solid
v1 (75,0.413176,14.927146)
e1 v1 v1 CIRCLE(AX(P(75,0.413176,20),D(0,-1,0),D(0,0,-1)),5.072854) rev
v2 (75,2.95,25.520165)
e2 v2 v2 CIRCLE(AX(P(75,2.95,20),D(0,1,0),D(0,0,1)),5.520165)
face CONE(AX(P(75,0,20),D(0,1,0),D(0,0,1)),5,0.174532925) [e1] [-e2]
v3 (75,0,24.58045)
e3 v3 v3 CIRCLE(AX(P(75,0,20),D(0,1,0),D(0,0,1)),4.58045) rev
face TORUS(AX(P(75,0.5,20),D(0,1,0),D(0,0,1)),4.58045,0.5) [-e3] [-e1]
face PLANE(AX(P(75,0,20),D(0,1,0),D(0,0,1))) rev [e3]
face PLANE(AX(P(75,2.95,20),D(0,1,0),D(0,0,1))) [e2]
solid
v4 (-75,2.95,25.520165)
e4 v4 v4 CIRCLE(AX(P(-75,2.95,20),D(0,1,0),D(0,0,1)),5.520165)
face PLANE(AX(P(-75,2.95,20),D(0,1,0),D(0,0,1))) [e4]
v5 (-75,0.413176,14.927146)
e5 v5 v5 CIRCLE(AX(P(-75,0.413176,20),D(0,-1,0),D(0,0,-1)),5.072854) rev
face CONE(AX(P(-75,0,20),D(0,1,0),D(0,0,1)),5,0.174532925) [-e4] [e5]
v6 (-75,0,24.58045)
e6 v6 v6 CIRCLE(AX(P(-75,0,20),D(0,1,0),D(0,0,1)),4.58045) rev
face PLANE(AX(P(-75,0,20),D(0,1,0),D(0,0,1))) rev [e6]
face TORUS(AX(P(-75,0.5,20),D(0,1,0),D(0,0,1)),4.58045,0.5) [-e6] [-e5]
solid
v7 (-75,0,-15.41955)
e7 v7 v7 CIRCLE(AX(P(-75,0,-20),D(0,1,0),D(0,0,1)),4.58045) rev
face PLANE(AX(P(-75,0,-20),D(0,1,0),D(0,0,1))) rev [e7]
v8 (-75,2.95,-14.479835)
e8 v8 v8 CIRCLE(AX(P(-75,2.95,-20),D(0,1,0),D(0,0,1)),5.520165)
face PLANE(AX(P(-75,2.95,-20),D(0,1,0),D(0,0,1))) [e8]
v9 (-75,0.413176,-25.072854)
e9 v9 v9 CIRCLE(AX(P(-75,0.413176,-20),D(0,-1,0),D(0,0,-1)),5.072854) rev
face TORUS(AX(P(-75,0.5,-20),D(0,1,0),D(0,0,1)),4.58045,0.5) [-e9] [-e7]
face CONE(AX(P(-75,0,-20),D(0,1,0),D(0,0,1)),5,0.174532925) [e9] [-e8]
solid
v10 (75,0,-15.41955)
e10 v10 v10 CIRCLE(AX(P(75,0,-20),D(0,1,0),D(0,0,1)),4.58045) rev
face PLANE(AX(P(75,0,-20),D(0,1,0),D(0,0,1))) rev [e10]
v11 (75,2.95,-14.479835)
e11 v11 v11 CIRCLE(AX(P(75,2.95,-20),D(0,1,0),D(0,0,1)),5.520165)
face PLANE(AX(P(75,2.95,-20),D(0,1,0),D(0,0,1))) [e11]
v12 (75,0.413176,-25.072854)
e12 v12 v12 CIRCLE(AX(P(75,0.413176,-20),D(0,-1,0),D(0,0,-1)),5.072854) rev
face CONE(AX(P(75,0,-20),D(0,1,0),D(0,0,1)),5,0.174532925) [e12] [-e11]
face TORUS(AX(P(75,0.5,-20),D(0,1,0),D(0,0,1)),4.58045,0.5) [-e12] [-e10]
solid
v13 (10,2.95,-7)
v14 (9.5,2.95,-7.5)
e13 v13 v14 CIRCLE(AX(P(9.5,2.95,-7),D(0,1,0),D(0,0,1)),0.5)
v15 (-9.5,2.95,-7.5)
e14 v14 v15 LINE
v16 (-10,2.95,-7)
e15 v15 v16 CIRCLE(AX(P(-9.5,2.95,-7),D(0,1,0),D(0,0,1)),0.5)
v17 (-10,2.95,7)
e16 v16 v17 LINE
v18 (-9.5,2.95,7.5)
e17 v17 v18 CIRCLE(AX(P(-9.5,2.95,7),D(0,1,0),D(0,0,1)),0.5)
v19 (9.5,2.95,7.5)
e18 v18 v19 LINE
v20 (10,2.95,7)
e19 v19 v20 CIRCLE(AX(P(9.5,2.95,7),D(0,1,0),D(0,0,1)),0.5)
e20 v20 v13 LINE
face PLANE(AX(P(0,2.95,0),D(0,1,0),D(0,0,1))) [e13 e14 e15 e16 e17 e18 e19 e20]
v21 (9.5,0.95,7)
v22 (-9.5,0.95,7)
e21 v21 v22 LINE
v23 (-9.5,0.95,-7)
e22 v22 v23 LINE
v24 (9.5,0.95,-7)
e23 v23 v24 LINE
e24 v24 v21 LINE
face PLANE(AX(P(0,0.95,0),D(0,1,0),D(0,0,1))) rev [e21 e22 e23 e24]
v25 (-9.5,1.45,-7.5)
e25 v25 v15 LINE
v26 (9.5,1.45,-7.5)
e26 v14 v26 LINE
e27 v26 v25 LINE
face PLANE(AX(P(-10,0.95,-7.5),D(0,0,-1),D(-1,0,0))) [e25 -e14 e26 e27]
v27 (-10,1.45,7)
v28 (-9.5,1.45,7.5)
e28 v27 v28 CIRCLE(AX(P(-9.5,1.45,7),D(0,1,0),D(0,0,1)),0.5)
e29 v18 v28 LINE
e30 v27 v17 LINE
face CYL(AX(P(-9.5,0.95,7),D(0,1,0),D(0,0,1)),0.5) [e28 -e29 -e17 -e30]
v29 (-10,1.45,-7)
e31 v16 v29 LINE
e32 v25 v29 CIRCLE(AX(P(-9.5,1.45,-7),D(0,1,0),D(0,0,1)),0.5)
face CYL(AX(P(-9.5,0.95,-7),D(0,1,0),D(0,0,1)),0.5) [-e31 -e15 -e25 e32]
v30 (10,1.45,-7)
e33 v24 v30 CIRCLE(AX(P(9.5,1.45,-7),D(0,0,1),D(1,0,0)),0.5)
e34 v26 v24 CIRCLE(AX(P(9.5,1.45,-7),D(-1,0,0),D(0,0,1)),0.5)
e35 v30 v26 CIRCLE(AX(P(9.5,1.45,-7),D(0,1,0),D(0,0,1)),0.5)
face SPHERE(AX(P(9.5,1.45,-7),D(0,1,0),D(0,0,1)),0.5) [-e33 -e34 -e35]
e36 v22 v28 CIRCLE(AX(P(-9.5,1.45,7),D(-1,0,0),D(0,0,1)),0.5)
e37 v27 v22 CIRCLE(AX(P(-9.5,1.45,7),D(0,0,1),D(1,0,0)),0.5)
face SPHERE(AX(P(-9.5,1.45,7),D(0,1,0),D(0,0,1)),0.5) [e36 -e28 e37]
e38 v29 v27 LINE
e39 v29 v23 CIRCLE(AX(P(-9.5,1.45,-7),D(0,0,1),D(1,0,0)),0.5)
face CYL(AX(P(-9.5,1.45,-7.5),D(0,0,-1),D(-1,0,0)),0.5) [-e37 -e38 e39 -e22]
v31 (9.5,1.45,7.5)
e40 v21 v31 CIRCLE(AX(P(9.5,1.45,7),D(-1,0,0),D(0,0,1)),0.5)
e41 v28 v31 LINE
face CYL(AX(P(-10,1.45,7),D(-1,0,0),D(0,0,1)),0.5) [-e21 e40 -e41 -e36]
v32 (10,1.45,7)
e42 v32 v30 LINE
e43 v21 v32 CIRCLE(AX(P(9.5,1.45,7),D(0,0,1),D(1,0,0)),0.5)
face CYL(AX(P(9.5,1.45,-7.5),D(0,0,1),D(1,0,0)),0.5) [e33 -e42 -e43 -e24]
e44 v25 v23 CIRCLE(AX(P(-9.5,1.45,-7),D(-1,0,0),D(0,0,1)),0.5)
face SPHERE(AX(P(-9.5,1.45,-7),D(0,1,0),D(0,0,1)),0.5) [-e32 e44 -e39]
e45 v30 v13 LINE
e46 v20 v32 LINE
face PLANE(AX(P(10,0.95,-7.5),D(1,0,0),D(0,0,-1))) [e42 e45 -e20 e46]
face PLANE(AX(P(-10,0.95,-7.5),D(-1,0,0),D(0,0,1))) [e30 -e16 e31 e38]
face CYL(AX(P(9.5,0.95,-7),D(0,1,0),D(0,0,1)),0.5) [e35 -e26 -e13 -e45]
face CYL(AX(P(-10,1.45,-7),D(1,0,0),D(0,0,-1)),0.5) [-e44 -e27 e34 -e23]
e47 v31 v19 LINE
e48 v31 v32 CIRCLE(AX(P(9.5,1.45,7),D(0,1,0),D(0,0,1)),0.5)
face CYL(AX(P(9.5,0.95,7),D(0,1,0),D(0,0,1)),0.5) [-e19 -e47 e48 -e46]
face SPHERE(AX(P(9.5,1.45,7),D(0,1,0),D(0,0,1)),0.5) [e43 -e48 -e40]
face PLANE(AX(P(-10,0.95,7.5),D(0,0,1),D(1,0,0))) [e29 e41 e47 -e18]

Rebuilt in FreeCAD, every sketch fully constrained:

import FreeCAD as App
import Part
import Sketcher
from FreeCAD import Vector
Q = App.Units.Quantity


def edges_at(feature, points):
    """Names of the edges that pass closest to the given points."""
    edges = feature.Shape.Edges
    near = lambda p: min(range(len(edges)), key=lambda i: edges[i].distToShape(Part.Vertex(*p))[0])
    return sorted({f"Edge{near(p) + 1}" for p in points})

doc = App.newDocument("Part")
body = doc.addObject("PartDesign::Body", "Body")

# Sketch on XZ plane
sketch1 = body.newObject("Sketcher::SketchObject", "Sketch")
sketch1.AttachmentSupport = (doc.getObject("XZ_Plane"), [""])
sketch1.MapMode = "FlatFace"
sketch1.addGeometry(Part.Circle(Vector(-75, -20, 0), Vector(0, 0, 1), 5), False)
sketch1.addConstraint(Sketcher.Constraint("Diameter", 0, Q("10 mm")))
sketch1.addConstraint(Sketcher.Constraint("DistanceX", 0, 3, -1, 1, Q("75 mm")))
sketch1.addConstraint(Sketcher.Constraint("DistanceY", 0, 3, -1, 1, Q("20 mm")))
pad1 = body.newObject("PartDesign::Pad", "Pad")
pad1.Profile = sketch1
pad1.Length = 2.95
pad1.Reversed = True
pad1.TaperAngle = 10
doc.recompute()

fillet = body.newObject("PartDesign::Fillet", "Fillet")
fillet.Base = (pad1, edges_at(pad1, [(-80, 0, -20)]))
fillet.Radius = 0.5
body2 = doc.addObject("PartDesign::Body", "Body001")

# Sketch on XZ plane
sketch2 = body2.newObject("Sketcher::SketchObject", "Sketch001")
sketch2.AttachmentSupport = (doc.getObject("XZ_Plane001"), [""])
sketch2.MapMode = "FlatFace"
sketch2.addGeometry(Part.Circle(Vector(-75, 20, 0), Vector(0, 0, 1), 5), False)
sketch2.addConstraint(Sketcher.Constraint("Diameter", 0, Q("10 mm")))
sketch2.addConstraint(Sketcher.Constraint("DistanceX", 0, 3, -1, 1, Q("75 mm")))
sketch2.addConstraint(Sketcher.Constraint("DistanceY", -1, 1, 0, 3, Q("20 mm")))
pad2 = body2.newObject("PartDesign::Pad", "Pad001")
pad2.Profile = sketch2
pad2.Length = 2.95
pad2.Reversed = True
pad2.TaperAngle = 10
doc.recompute()

fillet2 = body2.newObject("PartDesign::Fillet", "Fillet001")
fillet2.Base = (pad2, edges_at(pad2, [(-80, 0, 20)]))
fillet2.Radius = 0.5
body3 = doc.addObject("PartDesign::Body", "Body002")

# Sketch on XZ plane
sketch3 = body3.newObject("Sketcher::SketchObject", "Sketch002")
sketch3.AttachmentSupport = (doc.getObject("XZ_Plane002"), [""])
sketch3.MapMode = "FlatFace"
sketch3.addGeometry(Part.Circle(Vector(75, -20, 0), Vector(0, 0, 1), 5), False)
sketch3.addConstraint(Sketcher.Constraint("Diameter", 0, Q("10 mm")))
sketch3.addConstraint(Sketcher.Constraint("DistanceX", -1, 1, 0, 3, Q("75 mm")))
sketch3.addConstraint(Sketcher.Constraint("DistanceY", 0, 3, -1, 1, Q("20 mm")))
pad3 = body3.newObject("PartDesign::Pad", "Pad002")
pad3.Profile = sketch3
pad3.Length = 2.95
pad3.Reversed = True
pad3.TaperAngle = 10
doc.recompute()

fillet3 = body3.newObject("PartDesign::Fillet", "Fillet002")
fillet3.Base = (pad3, edges_at(pad3, [(70, 0, -20)]))
fillet3.Radius = 0.5
body4 = doc.addObject("PartDesign::Body", "Body003")

# Sketch on XZ plane
sketch4 = body4.newObject("Sketcher::SketchObject", "Sketch003")
sketch4.AttachmentSupport = (doc.getObject("XZ_Plane003"), [""])
sketch4.MapMode = "FlatFace"
sketch4.addGeometry(Part.Circle(Vector(75, 20, 0), Vector(0, 0, 1), 5), False)
sketch4.addConstraint(Sketcher.Constraint("Diameter", 0, Q("10 mm")))
sketch4.addConstraint(Sketcher.Constraint("DistanceX", -1, 1, 0, 3, Q("75 mm")))
sketch4.addConstraint(Sketcher.Constraint("DistanceY", -1, 1, 0, 3, Q("20 mm")))
pad4 = body4.newObject("PartDesign::Pad", "Pad003")
pad4.Profile = sketch4
pad4.Length = 2.95
pad4.Reversed = True
pad4.TaperAngle = 10
doc.recompute()

fillet4 = body4.newObject("PartDesign::Fillet", "Fillet003")
fillet4.Base = (pad4, edges_at(pad4, [(70, 0, 20)]))
fillet4.Radius = 0.5
body5 = doc.addObject("PartDesign::Body", "Body004")

# Sketch on XZ plane
sketch5 = body5.newObject("Sketcher::SketchObject", "Sketch004")
sketch5.AttachmentSupport = (doc.getObject("XZ_Plane004"), [""])
sketch5.MapMode = "FlatFace"
sketch5.AttachmentOffset = App.Placement(Vector(0, 0, -2.95), App.Rotation())
sketch5.addGeometry(Part.LineSegment(Vector(-10, -8, 0), Vector(-10, 8, 0)), False)
sketch5.addGeometry(Part.LineSegment(Vector(-10, 8, 0), Vector(10, 8, 0)), False)
sketch5.addGeometry(Part.LineSegment(Vector(10, 8, 0), Vector(10, -8, 0)), False)
sketch5.addGeometry(Part.LineSegment(Vector(10, -8, 0), Vector(-10, -8, 0)), False)
sketch5.addConstraint(Sketcher.Constraint("Coincident", 0, 2, 1, 1))
sketch5.addConstraint(Sketcher.Constraint("Coincident", 1, 2, 2, 1))
sketch5.addConstraint(Sketcher.Constraint("Coincident", 2, 2, 3, 1))
sketch5.addConstraint(Sketcher.Constraint("Coincident", 3, 2, 0, 1))
sketch5.addConstraint(Sketcher.Constraint("Vertical", 0))
sketch5.addConstraint(Sketcher.Constraint("Horizontal", 1))
sketch5.addConstraint(Sketcher.Constraint("Vertical", 2))
sketch5.addConstraint(Sketcher.Constraint("Horizontal", 3))
sketch5.addConstraint(Sketcher.Constraint("Symmetric", 0, 2, 2, 2, -1, 1))
sketch5.addConstraint(Sketcher.Constraint("DistanceX", 1, 1, 1, 2, Q("20 mm")))
sketch5.addConstraint(Sketcher.Constraint("DistanceY", 0, 1, 0, 2, Q("15 mm")))
pad5 = body5.newObject("PartDesign::Pad", "Pad004")
pad5.Profile = sketch5
pad5.Length = 2
doc.recompute()

fillet5 = body5.newObject("PartDesign::Fillet", "Fillet004")
fillet5.Base = (pad5, edges_at(pad5, [
    (10, 1.95, 7.5),
    (-10, 1.95, 7.5),
    (-10, 1.95, -7.5),
    (10, 1.95, -7.5),
]))
fillet5.Radius = 0.5
doc.recompute()

fillet6 = body5.newObject("PartDesign::Fillet", "Fillet005")
fillet6.Base = (fillet5, edges_at(fillet5, [
    (0, 0.95, -7.5),
    (-10, 0.95, 0),
    (10, 0.95, 0),
    (0, 0.95, 7.5),
    (9.854, 0.95, -7.354),
    (9.854, 0.95, 7.354),
    (-9.854, 0.95, 7.354),
    (-9.854, 0.95, -7.354),
]))
fillet6.Radius = 0.5

doc.recompute()
